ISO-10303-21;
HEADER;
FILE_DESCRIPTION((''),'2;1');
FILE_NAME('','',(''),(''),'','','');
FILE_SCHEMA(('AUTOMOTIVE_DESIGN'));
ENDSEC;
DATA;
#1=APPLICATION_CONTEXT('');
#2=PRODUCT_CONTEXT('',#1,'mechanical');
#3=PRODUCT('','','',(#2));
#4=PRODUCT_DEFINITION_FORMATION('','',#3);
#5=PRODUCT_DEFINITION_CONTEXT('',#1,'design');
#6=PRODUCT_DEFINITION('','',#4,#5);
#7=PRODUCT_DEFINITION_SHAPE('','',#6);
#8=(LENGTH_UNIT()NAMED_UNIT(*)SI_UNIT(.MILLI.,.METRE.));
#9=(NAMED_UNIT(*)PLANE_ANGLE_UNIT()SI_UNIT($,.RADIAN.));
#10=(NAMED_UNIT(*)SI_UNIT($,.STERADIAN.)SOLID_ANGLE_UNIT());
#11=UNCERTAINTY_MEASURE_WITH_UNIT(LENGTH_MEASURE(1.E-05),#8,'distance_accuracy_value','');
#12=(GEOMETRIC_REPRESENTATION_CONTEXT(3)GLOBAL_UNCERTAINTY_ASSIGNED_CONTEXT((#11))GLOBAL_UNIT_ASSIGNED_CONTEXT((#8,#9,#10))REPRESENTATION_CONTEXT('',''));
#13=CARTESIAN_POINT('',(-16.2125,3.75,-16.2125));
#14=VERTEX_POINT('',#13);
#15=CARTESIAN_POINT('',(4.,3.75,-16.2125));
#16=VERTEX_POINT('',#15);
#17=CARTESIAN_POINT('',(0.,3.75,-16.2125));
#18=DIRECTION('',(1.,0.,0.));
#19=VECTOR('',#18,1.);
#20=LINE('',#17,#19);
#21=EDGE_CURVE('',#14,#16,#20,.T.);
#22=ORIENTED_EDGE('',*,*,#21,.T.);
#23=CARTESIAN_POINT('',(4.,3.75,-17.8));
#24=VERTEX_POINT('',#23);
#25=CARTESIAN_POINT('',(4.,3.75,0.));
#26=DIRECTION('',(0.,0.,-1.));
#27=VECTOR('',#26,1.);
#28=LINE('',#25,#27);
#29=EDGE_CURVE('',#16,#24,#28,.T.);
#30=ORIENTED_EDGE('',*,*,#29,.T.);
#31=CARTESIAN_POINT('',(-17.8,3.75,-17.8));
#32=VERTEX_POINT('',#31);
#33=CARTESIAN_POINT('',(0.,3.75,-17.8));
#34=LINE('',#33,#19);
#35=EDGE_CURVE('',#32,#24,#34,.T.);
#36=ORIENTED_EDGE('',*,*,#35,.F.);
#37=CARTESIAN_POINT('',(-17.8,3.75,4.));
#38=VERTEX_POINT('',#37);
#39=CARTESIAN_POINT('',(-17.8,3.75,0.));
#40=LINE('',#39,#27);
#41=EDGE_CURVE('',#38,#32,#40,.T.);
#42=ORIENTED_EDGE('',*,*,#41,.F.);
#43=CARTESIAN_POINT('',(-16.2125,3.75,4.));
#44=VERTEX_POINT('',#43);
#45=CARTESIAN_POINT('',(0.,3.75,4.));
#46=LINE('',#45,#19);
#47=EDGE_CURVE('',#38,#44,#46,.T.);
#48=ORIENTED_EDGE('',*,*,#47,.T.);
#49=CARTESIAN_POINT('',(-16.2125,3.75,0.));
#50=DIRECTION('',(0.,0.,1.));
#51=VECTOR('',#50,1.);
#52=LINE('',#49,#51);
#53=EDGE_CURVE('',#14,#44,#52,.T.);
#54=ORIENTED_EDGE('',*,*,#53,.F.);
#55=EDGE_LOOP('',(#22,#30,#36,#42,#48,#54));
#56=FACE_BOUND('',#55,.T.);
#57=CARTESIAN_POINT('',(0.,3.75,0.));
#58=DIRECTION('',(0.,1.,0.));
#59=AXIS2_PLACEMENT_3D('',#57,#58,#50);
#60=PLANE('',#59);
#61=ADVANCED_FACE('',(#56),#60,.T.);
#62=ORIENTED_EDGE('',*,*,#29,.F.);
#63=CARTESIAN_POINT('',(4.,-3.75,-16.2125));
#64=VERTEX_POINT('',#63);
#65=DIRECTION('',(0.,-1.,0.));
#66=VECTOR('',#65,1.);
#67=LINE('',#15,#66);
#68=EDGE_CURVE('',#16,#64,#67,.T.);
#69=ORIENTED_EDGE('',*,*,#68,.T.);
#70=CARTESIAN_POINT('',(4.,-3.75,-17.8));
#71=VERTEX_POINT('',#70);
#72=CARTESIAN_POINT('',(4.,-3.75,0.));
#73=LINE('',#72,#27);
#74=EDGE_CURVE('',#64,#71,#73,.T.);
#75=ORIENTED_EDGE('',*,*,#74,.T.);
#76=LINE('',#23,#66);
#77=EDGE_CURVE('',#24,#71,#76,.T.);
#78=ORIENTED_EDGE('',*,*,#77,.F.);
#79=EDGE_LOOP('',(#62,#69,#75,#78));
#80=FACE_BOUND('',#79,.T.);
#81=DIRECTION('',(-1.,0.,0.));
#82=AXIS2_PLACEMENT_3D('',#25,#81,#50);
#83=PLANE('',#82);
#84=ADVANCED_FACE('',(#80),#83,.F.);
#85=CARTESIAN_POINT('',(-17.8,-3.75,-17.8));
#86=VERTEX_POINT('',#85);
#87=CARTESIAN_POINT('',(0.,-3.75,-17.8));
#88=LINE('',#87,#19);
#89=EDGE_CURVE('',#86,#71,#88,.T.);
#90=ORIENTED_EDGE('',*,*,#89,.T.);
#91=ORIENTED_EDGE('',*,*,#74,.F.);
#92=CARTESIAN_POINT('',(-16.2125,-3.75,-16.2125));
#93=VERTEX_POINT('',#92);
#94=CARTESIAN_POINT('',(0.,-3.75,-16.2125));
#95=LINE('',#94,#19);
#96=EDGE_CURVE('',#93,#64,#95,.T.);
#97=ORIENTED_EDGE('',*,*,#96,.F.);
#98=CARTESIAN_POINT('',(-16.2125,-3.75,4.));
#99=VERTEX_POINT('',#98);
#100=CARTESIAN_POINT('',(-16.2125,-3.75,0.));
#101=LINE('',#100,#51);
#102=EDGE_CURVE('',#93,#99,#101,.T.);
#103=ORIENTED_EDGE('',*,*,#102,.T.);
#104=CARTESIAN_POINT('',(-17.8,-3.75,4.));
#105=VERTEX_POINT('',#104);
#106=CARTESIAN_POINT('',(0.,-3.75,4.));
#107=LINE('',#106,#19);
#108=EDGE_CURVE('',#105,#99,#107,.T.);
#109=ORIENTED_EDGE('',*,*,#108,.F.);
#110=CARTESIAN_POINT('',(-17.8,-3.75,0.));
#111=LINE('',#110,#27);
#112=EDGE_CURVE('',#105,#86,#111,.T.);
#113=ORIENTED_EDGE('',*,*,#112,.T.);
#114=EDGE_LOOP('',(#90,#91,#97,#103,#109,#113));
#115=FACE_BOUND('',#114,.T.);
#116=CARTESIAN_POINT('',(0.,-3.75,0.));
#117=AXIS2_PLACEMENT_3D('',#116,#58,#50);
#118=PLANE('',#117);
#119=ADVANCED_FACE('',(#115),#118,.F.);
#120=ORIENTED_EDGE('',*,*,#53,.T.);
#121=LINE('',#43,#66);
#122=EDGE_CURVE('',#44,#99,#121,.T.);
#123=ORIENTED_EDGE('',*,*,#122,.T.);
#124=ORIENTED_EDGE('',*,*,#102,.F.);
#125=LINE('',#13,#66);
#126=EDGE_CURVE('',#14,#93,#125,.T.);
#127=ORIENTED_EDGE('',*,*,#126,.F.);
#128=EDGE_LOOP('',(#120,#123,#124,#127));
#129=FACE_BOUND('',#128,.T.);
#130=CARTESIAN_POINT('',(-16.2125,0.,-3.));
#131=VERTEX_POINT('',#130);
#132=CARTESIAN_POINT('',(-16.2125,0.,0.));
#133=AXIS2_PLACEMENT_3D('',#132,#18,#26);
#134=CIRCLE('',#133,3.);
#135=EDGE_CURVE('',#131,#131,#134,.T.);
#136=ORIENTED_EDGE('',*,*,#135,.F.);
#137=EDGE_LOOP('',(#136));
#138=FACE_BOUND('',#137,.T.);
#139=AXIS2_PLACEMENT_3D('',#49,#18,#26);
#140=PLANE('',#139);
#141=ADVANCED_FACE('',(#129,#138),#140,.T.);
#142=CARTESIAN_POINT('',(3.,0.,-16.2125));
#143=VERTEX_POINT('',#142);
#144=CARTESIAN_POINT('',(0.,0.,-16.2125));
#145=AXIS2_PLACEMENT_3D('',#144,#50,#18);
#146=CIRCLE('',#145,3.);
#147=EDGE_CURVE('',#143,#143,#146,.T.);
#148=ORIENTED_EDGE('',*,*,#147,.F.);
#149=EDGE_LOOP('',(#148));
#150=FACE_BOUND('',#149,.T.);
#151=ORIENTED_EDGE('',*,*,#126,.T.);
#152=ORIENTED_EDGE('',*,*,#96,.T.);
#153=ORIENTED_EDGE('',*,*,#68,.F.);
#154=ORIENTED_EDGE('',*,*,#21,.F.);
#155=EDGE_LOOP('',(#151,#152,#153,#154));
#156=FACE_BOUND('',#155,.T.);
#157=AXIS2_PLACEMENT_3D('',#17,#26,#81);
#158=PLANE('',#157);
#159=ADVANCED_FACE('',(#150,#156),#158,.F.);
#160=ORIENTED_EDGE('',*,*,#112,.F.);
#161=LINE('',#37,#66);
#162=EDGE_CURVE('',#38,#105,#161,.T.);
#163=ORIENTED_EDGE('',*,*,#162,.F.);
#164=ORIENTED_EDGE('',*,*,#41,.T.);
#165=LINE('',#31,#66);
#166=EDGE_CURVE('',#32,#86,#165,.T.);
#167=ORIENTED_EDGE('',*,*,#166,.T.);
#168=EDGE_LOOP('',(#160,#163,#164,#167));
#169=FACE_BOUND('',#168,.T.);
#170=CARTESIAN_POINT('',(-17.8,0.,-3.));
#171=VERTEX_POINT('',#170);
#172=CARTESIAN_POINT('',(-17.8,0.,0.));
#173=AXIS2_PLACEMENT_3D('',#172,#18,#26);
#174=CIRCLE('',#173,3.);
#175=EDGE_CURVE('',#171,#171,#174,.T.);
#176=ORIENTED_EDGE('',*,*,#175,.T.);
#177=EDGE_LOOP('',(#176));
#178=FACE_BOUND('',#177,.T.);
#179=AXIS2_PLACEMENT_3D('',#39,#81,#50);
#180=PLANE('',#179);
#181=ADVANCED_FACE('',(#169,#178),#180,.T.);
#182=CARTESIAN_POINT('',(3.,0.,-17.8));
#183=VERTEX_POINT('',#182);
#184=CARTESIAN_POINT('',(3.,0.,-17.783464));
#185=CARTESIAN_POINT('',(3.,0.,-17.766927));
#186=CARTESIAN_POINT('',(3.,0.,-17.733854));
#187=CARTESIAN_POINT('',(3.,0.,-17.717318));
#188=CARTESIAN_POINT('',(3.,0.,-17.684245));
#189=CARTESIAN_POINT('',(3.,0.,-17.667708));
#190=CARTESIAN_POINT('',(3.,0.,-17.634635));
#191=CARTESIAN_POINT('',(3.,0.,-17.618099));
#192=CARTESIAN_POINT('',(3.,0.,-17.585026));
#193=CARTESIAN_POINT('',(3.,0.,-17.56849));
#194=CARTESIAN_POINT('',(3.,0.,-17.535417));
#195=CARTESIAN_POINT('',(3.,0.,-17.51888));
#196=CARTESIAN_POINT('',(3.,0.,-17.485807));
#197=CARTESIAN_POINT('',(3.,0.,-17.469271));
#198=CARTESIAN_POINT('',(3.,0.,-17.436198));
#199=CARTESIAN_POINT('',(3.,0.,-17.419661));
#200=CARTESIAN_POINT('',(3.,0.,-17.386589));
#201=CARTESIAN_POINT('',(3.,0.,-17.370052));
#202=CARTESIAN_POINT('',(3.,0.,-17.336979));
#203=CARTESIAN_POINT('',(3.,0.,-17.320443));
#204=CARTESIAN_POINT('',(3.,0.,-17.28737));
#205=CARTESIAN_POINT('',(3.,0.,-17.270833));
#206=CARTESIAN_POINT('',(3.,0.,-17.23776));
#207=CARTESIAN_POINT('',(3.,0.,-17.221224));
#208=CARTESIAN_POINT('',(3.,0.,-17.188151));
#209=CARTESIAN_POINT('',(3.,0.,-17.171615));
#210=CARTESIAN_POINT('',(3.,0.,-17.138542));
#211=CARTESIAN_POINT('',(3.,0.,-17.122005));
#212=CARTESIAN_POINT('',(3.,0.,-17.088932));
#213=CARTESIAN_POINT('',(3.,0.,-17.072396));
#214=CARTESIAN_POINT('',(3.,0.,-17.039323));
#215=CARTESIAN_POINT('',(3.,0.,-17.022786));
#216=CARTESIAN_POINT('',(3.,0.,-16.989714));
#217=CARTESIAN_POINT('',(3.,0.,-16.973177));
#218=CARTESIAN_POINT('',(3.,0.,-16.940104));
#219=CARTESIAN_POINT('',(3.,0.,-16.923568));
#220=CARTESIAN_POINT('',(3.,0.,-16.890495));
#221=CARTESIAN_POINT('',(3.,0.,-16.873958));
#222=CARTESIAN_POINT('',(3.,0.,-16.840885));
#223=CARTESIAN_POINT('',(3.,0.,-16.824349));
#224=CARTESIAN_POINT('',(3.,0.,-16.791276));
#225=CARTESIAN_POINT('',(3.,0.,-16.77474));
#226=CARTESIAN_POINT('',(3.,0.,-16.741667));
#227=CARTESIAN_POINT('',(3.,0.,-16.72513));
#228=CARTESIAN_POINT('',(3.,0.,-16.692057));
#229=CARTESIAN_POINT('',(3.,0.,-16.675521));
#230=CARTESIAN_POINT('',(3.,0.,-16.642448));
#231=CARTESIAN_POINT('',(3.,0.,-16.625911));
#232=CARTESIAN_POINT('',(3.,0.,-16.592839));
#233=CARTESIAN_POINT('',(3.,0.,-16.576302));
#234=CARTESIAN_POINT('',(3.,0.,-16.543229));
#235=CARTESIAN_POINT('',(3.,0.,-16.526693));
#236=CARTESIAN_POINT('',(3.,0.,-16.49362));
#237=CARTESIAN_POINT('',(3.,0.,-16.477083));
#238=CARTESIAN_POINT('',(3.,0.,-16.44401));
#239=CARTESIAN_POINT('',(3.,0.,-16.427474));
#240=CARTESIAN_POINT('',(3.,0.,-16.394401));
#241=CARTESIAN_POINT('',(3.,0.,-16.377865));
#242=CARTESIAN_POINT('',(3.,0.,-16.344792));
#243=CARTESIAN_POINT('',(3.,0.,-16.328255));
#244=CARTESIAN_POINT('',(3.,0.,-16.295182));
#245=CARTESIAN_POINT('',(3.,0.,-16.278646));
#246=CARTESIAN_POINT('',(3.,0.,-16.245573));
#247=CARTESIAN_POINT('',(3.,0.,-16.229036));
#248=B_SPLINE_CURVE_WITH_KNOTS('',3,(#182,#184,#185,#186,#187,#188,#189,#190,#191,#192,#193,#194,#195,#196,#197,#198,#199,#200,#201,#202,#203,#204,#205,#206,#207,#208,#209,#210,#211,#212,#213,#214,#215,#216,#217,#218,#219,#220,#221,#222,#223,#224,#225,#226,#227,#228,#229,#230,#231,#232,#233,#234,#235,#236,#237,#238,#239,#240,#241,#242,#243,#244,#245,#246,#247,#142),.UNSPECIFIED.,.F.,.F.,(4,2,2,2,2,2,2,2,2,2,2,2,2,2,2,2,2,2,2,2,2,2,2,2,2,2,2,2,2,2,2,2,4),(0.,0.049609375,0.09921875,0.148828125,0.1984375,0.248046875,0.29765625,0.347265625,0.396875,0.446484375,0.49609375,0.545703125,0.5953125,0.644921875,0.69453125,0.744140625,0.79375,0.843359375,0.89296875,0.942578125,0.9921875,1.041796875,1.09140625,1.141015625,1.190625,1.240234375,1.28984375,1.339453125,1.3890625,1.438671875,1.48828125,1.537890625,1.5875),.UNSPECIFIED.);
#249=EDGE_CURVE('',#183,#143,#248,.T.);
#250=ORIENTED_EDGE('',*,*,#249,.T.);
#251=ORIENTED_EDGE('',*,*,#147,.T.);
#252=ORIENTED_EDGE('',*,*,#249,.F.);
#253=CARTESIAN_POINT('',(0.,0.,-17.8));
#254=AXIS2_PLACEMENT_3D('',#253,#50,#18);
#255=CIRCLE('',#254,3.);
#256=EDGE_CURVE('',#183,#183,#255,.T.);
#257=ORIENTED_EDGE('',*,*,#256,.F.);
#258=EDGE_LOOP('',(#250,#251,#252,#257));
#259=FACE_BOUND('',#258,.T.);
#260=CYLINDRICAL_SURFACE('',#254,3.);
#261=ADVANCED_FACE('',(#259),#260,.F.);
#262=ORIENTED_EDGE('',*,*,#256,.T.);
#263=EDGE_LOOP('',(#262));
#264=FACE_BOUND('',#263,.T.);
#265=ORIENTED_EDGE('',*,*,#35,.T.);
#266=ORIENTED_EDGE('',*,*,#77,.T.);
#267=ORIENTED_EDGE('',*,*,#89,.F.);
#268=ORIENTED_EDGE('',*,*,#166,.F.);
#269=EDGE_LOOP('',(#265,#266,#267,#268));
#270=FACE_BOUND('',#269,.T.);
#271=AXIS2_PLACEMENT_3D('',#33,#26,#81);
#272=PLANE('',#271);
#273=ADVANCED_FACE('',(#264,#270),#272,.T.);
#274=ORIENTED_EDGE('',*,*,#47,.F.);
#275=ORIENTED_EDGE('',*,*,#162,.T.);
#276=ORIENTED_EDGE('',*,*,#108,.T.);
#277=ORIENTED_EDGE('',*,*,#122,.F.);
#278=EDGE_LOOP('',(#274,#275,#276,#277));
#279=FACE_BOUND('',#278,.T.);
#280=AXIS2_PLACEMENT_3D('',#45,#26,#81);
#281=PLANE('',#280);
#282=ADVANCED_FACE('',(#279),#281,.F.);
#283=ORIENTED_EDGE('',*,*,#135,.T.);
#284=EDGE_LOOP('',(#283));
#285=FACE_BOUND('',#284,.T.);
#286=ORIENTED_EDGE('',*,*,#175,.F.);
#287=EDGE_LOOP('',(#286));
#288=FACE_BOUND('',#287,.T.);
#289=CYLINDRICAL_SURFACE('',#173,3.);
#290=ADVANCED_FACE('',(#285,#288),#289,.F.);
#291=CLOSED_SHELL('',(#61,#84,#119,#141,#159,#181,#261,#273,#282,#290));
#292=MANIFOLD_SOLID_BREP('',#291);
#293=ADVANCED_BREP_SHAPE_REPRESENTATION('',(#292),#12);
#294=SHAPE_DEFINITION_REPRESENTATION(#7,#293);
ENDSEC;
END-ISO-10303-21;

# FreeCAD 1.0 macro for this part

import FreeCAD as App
import Part
import Sketcher
from FreeCAD import Vector


def add_polygon(sketch, points):
    """Adds a closed chain of lines whose ends are joined by coincident constraints."""
    first, n = sketch.GeometryCount, len(points)
    for a, b in zip(points, points[1:] + points[:1]):
        sketch.addGeometry(Part.LineSegment(App.Vector(*a, 0), App.Vector(*b, 0)), False)
    for i in range(n):
        sketch.addConstraint(Sketcher.Constraint("Coincident", first + i, 2, first + (i + 1) % n, 1))

doc = App.newDocument("Part")
body = doc.addObject("PartDesign::Body", "Body")

# Sketch on XZ plane
sketch1 = body.newObject("Sketcher::SketchObject", "Sketch")
sketch1.AttachmentSupport = (doc.getObject("XZ_Plane"), [""])
sketch1.MapMode = "FlatFace"
add_polygon(sketch1, [(4, -16.2), (4, -17.8), (-17.8, -17.8), (-17.8, 4), (-16.2, 4), (-16.2, -16.2)])  # lines 0-5
sketch1.addConstraint([
    Sketcher.Constraint("Vertical", 0),
    Sketcher.Constraint("Horizontal", 1),
    Sketcher.Constraint("Vertical", 2),
    Sketcher.Constraint("Horizontal", 3),
    Sketcher.Constraint("Vertical", 4),
    Sketcher.Constraint("Horizontal", 5),
    Sketcher.Constraint("Equal", 3, 0),
    Sketcher.Constraint("Equal", 1, 2),
    Sketcher.Constraint("DistanceX", 1, 2, 1, 1, 21.8),
    Sketcher.Constraint("DistanceX", -1, 1, 0, 2, 4.0),
    Sketcher.Constraint("DistanceY", -1, 1, 2, 2, 4.0),
    Sketcher.Constraint("DistanceX", 3, 1, 3, 2, 1.5875),
])
pad1 = body.newObject("PartDesign::Pad", "Pad")
pad1.Profile = sketch1
pad1.Length = 7.5
pad1.Midplane = True

# Sketch on XY plane
sketch2 = body.newObject("Sketcher::SketchObject", "Sketch001")
sketch2.AttachmentSupport = (doc.getObject("XY_Plane"), [""])
sketch2.MapMode = "FlatFace"
sketch2.AttachmentOffset = App.Placement(Vector(0, 0, -16.2125), App.Rotation())
sketch2.addGeometry(Part.Circle(Vector(0, 0, 0), Vector(0, 0, 1), 3), False)
sketch2.addConstraint([
    Sketcher.Constraint("Coincident", 0, 3, -1, 1),
    Sketcher.Constraint("Diameter", 0, 6.0),
])
pocket1 = body.newObject("PartDesign::Pocket", "Pocket")
pocket1.Profile = sketch2
pocket1.Type = "ThroughAll"

# Sketch on YZ plane
sketch3 = body.newObject("Sketcher::SketchObject", "Sketch002")
sketch3.AttachmentSupport = (doc.getObject("YZ_Plane"), [""])
sketch3.MapMode = "FlatFace"
sketch3.AttachmentOffset = App.Placement(Vector(0, 0, -16.2125), App.Rotation())
sketch3.addGeometry(Part.Circle(Vector(0, 0, 0), Vector(0, 0, 1), 3), False)
sketch3.addConstraint([
    Sketcher.Constraint("Coincident", 0, 3, -1, 1),
    Sketcher.Constraint("Diameter", 0, 6.0),
])
pocket2 = body.newObject("PartDesign::Pocket", "Pocket001")
pocket2.Profile = sketch3
pocket2.Type = "ThroughAll"

doc.recompute()
